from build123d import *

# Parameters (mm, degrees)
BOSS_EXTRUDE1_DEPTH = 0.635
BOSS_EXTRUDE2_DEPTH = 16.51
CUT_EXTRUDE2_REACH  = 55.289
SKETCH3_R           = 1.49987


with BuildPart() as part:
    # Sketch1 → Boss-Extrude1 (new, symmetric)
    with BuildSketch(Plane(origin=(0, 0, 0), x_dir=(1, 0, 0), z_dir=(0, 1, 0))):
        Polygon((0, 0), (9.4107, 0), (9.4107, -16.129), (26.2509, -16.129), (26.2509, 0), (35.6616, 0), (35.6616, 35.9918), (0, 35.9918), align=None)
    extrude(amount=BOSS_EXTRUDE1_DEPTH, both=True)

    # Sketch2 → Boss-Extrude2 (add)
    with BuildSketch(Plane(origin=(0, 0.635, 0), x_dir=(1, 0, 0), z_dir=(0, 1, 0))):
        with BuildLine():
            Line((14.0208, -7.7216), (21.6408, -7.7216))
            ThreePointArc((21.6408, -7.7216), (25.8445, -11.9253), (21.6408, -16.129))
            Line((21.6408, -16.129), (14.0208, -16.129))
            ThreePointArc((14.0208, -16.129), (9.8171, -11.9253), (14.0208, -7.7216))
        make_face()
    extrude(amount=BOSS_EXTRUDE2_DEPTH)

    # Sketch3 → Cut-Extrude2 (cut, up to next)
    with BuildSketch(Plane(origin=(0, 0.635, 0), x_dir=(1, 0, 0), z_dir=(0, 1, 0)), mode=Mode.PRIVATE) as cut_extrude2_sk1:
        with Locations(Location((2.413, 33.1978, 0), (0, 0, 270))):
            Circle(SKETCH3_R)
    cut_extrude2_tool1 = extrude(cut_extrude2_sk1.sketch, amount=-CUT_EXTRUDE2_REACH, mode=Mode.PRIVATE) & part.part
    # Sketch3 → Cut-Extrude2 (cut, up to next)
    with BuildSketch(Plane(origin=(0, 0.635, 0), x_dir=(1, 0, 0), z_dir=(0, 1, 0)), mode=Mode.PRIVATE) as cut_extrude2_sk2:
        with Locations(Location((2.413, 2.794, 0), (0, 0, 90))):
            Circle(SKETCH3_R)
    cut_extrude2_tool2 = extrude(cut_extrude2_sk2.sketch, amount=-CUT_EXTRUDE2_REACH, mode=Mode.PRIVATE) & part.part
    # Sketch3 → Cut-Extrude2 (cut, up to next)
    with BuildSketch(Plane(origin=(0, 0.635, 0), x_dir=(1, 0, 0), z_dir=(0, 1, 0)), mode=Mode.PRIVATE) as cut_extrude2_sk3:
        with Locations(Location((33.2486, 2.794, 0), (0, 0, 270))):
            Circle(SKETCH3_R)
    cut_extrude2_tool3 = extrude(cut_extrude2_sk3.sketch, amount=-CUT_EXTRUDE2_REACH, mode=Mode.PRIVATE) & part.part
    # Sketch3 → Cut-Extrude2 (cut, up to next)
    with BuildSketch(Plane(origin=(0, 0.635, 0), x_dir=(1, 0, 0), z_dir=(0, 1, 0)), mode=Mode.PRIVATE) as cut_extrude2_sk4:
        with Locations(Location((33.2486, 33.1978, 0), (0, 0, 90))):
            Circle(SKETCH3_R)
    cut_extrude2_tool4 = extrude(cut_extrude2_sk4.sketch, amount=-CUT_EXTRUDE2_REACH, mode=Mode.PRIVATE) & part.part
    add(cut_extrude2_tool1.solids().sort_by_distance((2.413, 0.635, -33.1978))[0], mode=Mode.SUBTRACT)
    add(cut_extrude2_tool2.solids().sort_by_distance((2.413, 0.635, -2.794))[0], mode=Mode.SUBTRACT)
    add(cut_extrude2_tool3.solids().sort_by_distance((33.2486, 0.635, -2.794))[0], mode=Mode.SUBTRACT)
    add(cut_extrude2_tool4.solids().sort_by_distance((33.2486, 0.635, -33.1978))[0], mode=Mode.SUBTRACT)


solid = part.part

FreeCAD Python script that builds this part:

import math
import FreeCAD as App
import Part
import Sketcher
from FreeCAD import Vector
Q = App.Units.Quantity

doc = App.newDocument("Part")
params = doc.addObject("Spreadsheet::Sheet", "Params")
for row, (alias, value) in enumerate([
    ("sketch1_width", "0.663 in"),
    ("sketch1_width2", "1.404 in"),
    ("sketch1_height", "0.635 in"),
    ("sketch1_height2", "1.417 in"),
    ("pad1_length", "0.05 in"),
    ("sketch2_width", "0.3 in"),
    ("pad2_length", "0.65 in"),
], start=1):
    params.set(f"A{row}", alias)
    params.set(f"B{row}", "=" + value)
    params.setAlias(f"B{row}", alias)

body = doc.addObject("PartDesign::Body", "Body")

# Sketch on XZ plane
sketch1 = body.newObject("Sketcher::SketchObject", "Sketch")
sketch1.AttachmentSupport = (doc.getObject("XZ_Plane"), [""])
sketch1.MapMode = "FlatFace"
sketch1.addGeometry(Part.LineSegment(Vector(0, 0, 0), Vector(9.4107, 0, 0)), False)
sketch1.addGeometry(Part.LineSegment(Vector(9.4107, 0, 0), Vector(9.4107, 16.129, 0)), False)
sketch1.addGeometry(Part.LineSegment(Vector(9.4107, 16.129, 0), Vector(26.2509, 16.129, 0)), False)
sketch1.addGeometry(Part.LineSegment(Vector(26.2509, 16.129, 0), Vector(26.2509, 0, 0)), False)
sketch1.addGeometry(Part.LineSegment(Vector(26.2509, 0, 0), Vector(35.6616, 0, 0)), False)
sketch1.addGeometry(Part.LineSegment(Vector(35.6616, 0, 0), Vector(35.6616, -35.9918, 0)), False)
sketch1.addGeometry(Part.LineSegment(Vector(35.6616, -35.9918, 0), Vector(0, -35.9918, 0)), False)
sketch1.addGeometry(Part.LineSegment(Vector(0, -35.9918, 0), Vector(0, 0, 0)), False)
sketch1.addConstraint(Sketcher.Constraint("Coincident", 0, 2, 1, 1))
sketch1.addConstraint(Sketcher.Constraint("Coincident", 1, 2, 2, 1))
sketch1.addConstraint(Sketcher.Constraint("Coincident", 2, 2, 3, 1))
sketch1.addConstraint(Sketcher.Constraint("Coincident", 3, 2, 4, 1))
sketch1.addConstraint(Sketcher.Constraint("Coincident", 4, 2, 5, 1))
sketch1.addConstraint(Sketcher.Constraint("Coincident", 5, 2, 6, 1))
sketch1.addConstraint(Sketcher.Constraint("Coincident", 6, 2, 7, 1))
sketch1.addConstraint(Sketcher.Constraint("Coincident", 7, 2, 0, 1))
sketch1.addConstraint(Sketcher.Constraint("Horizontal", 0))
sketch1.addConstraint(Sketcher.Constraint("Vertical", 1))
sketch1.addConstraint(Sketcher.Constraint("Horizontal", 2))
sketch1.addConstraint(Sketcher.Constraint("Vertical", 3))
sketch1.addConstraint(Sketcher.Constraint("Horizontal", 4))
sketch1.addConstraint(Sketcher.Constraint("Vertical", 5))
sketch1.addConstraint(Sketcher.Constraint("Horizontal", 6))
sketch1.addConstraint(Sketcher.Constraint("Vertical", 7))
sketch1.addConstraint(Sketcher.Constraint("Coincident", 7, 2, -1, 1))
sketch1.addConstraint(Sketcher.Constraint("PointOnObject", 3, 2, -1))
sketch1.addConstraint(Sketcher.Constraint("Equal", 0, 4))
sketch1.addConstraint(Sketcher.Constraint("DistanceX", 2, 1, 2, 2, Q("0.663 in")))
sketch1.addConstraint(Sketcher.Constraint("DistanceX", 6, 2, 6, 1, Q("1.404 in")))
sketch1.addConstraint(Sketcher.Constraint("DistanceY", 1, 1, 1, 2, Q("0.635 in")))
sketch1.addConstraint(Sketcher.Constraint("DistanceY", 5, 2, 5, 1, Q("1.417 in")))
sketch1.setExpression("Constraints[19]", "Params.sketch1_width")
sketch1.setExpression("Constraints[20]", "Params.sketch1_width2")
sketch1.setExpression("Constraints[21]", "Params.sketch1_height")
sketch1.setExpression("Constraints[22]", "Params.sketch1_height2")
pad1 = body.newObject("PartDesign::Pad", "Pad")
pad1.Profile = sketch1
pad1.setExpression("Length", "Params.pad1_length")
pad1.Midplane = True

# Sketch on XZ plane
sketch2 = body.newObject("Sketcher::SketchObject", "Sketch001")
sketch2.AttachmentSupport = (doc.getObject("XZ_Plane"), [""])
sketch2.MapMode = "FlatFace"
sketch2.AttachmentOffset = App.Placement(Vector(0, 0, -0.025 * 25.4), App.Rotation())
sketch2.addGeometry(Part.LineSegment(Vector(21.6408, 7.7216, 0), Vector(14.0208, 7.7216, 0)), False)
sketch2.addGeometry(Part.ArcOfCircle(Part.Circle(Vector(14.0208, 11.9253, 0), Vector(0, 0, 1), 4.2037), math.radians(90), math.radians(270)), False)
sketch2.addGeometry(Part.LineSegment(Vector(14.0208, 16.129, 0), Vector(21.6408, 16.129, 0)), False)
sketch2.addGeometry(Part.ArcOfCircle(Part.Circle(Vector(21.6408, 11.9253, 0), Vector(0, 0, 1), 4.2037), math.radians(-90), math.radians(90)), False)
sketch2.addConstraint(Sketcher.Constraint("Tangent", 0, 2, 1, 2))
sketch2.addConstraint(Sketcher.Constraint("Tangent", 1, 1, 2, 1))
sketch2.addConstraint(Sketcher.Constraint("Tangent", 2, 2, 3, 2))
sketch2.addConstraint(Sketcher.Constraint("Tangent", 3, 1, 0, 1))
sketch2.addConstraint(Sketcher.Constraint("Horizontal", 0))
sketch2.addConstraint(Sketcher.Constraint("Horizontal", 2))
sketch2.addConstraint(Sketcher.Constraint("DistanceX", 0, 2, 0, 1, Q("0.3 in")))
sketch2.addConstraint(Sketcher.Constraint("Radius", 1, Q("0.1655 in")))
sketch2.addConstraint(Sketcher.Constraint("DistanceX", -1, 1, 1, 3, Q("0.552 in")))
sketch2.addConstraint(Sketcher.Constraint("DistanceY", -1, 1, 0, 2, Q("0.304 in")))
sketch2.setExpression("Constraints[6]", "Params.sketch2_width")
pad2 = body.newObject("PartDesign::Pad", "Pad001")
pad2.Profile = sketch2
pad2.setExpression("Length", "Params.pad2_length")
pad2.Reversed = True

# Sketch on XZ plane
sketch3 = body.newObject("Sketcher::SketchObject", "Sketch002")
sketch3.AttachmentSupport = (doc.getObject("XZ_Plane"), [""])
sketch3.MapMode = "FlatFace"
sketch3.AttachmentOffset = App.Placement(Vector(0, 0, -0.025 * 25.4), App.Rotation())
sketch3.addGeometry(Part.Circle(Vector(2.413, -33.1978, 0), Vector(0, 0, 1), 1.49987), False)
sketch3.addConstraint(Sketcher.Constraint("Diameter", 0, Q("0.1181 in")))
sketch3.addConstraint(Sketcher.Constraint("DistanceX", -1, 1, 0, 3, Q("0.095 in")))
sketch3.addConstraint(Sketcher.Constraint("DistanceY", 0, 3, -1, 1, Q("1.307 in")))
pocket1 = body.newObject("PartDesign::Pocket", "Pocket")
pocket1.Profile = sketch3
pocket1.Type = "UpToFirst"
pocket1.Reversed = True

# Sketch on XZ plane
sketch4 = body.newObject("Sketcher::SketchObject", "Sketch003")
sketch4.AttachmentSupport = (doc.getObject("XZ_Plane"), [""])
sketch4.MapMode = "FlatFace"
sketch4.AttachmentOffset = App.Placement(Vector(0, 0, -0.025 * 25.4), App.Rotation())
sketch4.addGeometry(Part.Circle(Vector(2.413, -2.794, 0), Vector(0, 0, 1), 1.49987), False)
sketch4.addConstraint(Sketcher.Constraint("Diameter", 0, Q("0.1181 in")))
sketch4.addConstraint(Sketcher.Constraint("DistanceY", 0, 3, -1, 1, Q("0.11 in")))
sketch4.addConstraint(Sketcher.Constraint("DistanceX", -1, 1, 0, 3, Q("0.095 in")))
pocket2 = body.newObject("PartDesign::Pocket", "Pocket001")
pocket2.Profile = sketch4
pocket2.Type = "UpToFirst"
pocket2.Reversed = True

# Sketch on XZ plane
sketch5 = body.newObject("Sketcher::SketchObject", "Sketch004")
sketch5.AttachmentSupport = (doc.getObject("XZ_Plane"), [""])
sketch5.MapMode = "FlatFace"
sketch5.AttachmentOffset = App.Placement(Vector(0, 0, -0.025 * 25.4), App.Rotation())
sketch5.addGeometry(Part.Circle(Vector(33.2486, -2.794, 0), Vector(0, 0, 1), 1.49987), False)
sketch5.addConstraint(Sketcher.Constraint("Diameter", 0, Q("0.1181 in")))
sketch5.addConstraint(Sketcher.Constraint("DistanceY", 0, 3, -1, 1, Q("0.11 in")))
sketch5.addConstraint(Sketcher.Constraint("DistanceX", -1, 1, 0, 3, Q("1.309 in")))
pocket3 = body.newObject("PartDesign::Pocket", "Pocket002")
pocket3.Profile = sketch5
pocket3.Type = "UpToFirst"
pocket3.Reversed = True

# Sketch on XZ plane
sketch6 = body.newObject("Sketcher::SketchObject", "Sketch005")
sketch6.AttachmentSupport = (doc.getObject("XZ_Plane"), [""])
sketch6.MapMode = "FlatFace"
sketch6.AttachmentOffset = App.Placement(Vector(0, 0, -0.025 * 25.4), App.Rotation())
sketch6.addGeometry(Part.Circle(Vector(33.2486, -33.1978, 0), Vector(0, 0, 1), 1.49987), False)
sketch6.addConstraint(Sketcher.Constraint("Diameter", 0, Q("0.1181 in")))
sketch6.addConstraint(Sketcher.Constraint("DistanceX", -1, 1, 0, 3, Q("1.309 in")))
sketch6.addConstraint(Sketcher.Constraint("DistanceY", 0, 3, -1, 1, Q("1.307 in")))
pocket4 = body.newObject("PartDesign::Pocket", "Pocket003")
pocket4.Profile = sketch6
pocket4.Type = "UpToFirst"
pocket4.Reversed = True

doc.recompute()
